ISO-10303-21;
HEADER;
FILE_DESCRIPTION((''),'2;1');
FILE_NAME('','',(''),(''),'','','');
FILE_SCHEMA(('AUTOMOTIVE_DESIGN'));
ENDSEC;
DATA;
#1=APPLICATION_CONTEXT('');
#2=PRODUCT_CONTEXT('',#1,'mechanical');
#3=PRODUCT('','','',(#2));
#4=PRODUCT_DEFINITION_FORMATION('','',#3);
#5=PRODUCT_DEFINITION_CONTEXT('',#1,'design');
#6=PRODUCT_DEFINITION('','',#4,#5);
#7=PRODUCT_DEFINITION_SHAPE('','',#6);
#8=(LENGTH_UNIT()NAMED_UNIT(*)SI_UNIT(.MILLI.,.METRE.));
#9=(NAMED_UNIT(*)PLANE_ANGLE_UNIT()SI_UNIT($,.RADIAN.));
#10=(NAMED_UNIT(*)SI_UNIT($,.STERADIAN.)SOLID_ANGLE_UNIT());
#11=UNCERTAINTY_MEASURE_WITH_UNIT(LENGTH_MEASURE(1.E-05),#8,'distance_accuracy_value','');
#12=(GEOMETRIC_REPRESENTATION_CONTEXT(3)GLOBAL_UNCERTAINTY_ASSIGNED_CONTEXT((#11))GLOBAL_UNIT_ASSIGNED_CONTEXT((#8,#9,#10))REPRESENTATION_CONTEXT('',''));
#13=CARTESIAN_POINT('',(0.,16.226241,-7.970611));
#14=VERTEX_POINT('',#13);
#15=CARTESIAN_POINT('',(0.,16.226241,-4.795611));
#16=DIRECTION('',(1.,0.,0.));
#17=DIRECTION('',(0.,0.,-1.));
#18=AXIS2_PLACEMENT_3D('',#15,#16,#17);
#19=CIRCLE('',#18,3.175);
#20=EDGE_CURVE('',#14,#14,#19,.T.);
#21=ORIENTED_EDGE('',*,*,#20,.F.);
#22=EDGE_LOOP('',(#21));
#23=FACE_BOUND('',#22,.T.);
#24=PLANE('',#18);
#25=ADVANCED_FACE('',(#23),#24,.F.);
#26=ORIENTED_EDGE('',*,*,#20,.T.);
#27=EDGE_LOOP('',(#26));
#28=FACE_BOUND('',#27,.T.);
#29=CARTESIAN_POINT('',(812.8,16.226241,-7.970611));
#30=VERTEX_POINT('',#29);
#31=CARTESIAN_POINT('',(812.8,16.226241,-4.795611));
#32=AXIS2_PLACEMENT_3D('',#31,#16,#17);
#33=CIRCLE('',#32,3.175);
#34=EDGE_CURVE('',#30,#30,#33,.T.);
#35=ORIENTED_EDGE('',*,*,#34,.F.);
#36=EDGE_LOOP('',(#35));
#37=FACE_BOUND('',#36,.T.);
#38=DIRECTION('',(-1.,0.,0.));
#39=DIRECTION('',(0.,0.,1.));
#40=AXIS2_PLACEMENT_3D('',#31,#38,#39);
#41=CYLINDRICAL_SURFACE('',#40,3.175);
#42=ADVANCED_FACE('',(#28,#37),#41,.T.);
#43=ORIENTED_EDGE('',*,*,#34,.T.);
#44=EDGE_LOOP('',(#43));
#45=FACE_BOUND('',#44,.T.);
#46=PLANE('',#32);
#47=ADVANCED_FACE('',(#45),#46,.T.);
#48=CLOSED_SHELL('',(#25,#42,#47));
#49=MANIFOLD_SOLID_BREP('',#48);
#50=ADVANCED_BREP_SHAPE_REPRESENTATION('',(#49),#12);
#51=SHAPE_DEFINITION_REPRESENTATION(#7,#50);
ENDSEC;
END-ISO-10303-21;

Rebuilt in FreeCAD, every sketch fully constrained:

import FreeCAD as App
import Part
import Sketcher
from FreeCAD import Vector
Q = App.Units.Quantity

doc = App.newDocument("Part")
body = doc.addObject("PartDesign::Body", "Body")

sketch1 = body.newObject("Sketcher::SketchObject", "Sketch")
sketch1.AttachmentSupport = (doc.getObject("YZ_Plane"), [""])
sketch1.MapMode = "FlatFace"
sketch1.addGeometry(Part.Circle(Vector(16.2, -4.8, 0), Vector(0, 0, 1), 3.2), False)
sketch1.addConstraint(Sketcher.Constraint("Diameter", 0, Q("0.25 in")))
sketch1.addConstraint(Sketcher.Constraint("DistanceX", -1, 1, 0, 3, Q("16.226241 mm")))
sketch1.addConstraint(Sketcher.Constraint("DistanceY", 0, 3, -1, 1, Q("4.795611 mm")))
pad1 = body.newObject("PartDesign::Pad", "Pad")
pad1.Profile = sketch1
pad1.Length = Q("32 in")

doc.recompute()
